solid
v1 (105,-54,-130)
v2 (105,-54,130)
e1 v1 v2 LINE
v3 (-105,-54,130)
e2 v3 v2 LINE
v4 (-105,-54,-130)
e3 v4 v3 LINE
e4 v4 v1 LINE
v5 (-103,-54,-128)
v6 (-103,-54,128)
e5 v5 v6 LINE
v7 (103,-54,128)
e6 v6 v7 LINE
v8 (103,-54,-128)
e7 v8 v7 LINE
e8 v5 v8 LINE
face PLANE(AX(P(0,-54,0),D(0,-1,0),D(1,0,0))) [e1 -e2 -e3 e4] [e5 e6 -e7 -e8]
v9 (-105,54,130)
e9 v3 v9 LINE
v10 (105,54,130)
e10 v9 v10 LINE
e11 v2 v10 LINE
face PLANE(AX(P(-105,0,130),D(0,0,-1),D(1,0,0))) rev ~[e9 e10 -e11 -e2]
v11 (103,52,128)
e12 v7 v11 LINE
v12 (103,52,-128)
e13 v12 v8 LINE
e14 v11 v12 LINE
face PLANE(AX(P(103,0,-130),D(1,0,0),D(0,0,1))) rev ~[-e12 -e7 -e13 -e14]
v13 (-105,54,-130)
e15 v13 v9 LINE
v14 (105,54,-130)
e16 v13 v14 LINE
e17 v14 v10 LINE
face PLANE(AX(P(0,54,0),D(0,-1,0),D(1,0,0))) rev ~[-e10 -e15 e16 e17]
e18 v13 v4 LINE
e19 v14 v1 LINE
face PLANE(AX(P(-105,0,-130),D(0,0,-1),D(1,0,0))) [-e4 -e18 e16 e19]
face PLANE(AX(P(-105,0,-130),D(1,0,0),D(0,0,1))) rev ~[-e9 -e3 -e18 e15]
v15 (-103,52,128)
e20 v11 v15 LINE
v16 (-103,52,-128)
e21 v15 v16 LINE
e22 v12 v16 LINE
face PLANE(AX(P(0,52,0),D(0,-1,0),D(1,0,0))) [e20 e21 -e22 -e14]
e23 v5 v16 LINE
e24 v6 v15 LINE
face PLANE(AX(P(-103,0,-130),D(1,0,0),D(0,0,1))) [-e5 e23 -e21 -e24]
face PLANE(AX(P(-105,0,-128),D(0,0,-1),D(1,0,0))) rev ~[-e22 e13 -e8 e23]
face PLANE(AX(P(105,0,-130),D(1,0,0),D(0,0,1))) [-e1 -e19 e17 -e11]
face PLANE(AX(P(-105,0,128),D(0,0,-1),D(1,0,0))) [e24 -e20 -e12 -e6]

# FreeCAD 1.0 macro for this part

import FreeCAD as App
import Part
import Sketcher
from FreeCAD import Vector


def faces_at(feature, points):
    """Names of the faces that lie closest to the given points."""
    faces = feature.Shape.Faces
    near = lambda p: min(range(len(faces)), key=lambda i: faces[i].distToShape(Part.Vertex(*p))[0])
    return sorted({f"Face{near(p) + 1}" for p in points})

doc = App.newDocument("Part")
params = doc.addObject("Spreadsheet::Sheet", "Params")
for row, (alias, value) in enumerate([
    ("sketch1_width", "210 mm"),
    ("sketch1_height", "260 mm"),
    ("pad1_length", "108 mm"),
    ("thickness_wall", "2 mm"),
], start=1):
    params.set(f"A{row}", alias)
    params.set(f"B{row}", "=" + value)
    params.setAlias(f"B{row}", alias)

body = doc.addObject("PartDesign::Body", "Body")

# Sketch on XZ plane
sketch1 = body.newObject("Sketcher::SketchObject", "Sketch")
sketch1.AttachmentSupport = (doc.getObject("XZ_Plane"), [""])
sketch1.MapMode = "FlatFace"
sketch1.addGeometry([
    Part.LineSegment(Vector(-105, 130, 0), Vector(-105, -130, 0)),
    Part.LineSegment(Vector(-105, -130, 0), Vector(105, -130, 0)),
    Part.LineSegment(Vector(105, -130, 0), Vector(105, 130, 0)),
    Part.LineSegment(Vector(105, 130, 0), Vector(-105, 130, 0)),
], False)
sketch1.addConstraint([
    Sketcher.Constraint("Coincident", 0, 2, 1, 1),
    Sketcher.Constraint("Coincident", 1, 2, 2, 1),
    Sketcher.Constraint("Coincident", 2, 2, 3, 1),
    Sketcher.Constraint("Coincident", 3, 2, 0, 1),
    Sketcher.Constraint("Vertical", 0),
    Sketcher.Constraint("Horizontal", 1),
    Sketcher.Constraint("Vertical", 2),
    Sketcher.Constraint("Horizontal", 3),
    Sketcher.Constraint("Symmetric", 0, 2, 2, 2, -1, 1),
    Sketcher.Constraint("DistanceX", 1, 1, 1, 2, 210.0),
    Sketcher.Constraint("DistanceY", 0, 2, 0, 1, 260.0),
])
sketch1.setExpression("Constraints[9]", "Params.sketch1_width")
sketch1.setExpression("Constraints[10]", "Params.sketch1_height")
pad1 = body.newObject("PartDesign::Pad", "Pad")
pad1.Profile = sketch1
pad1.setExpression("Length", "Params.pad1_length")
pad1.Midplane = True
doc.recompute()

thickness = body.newObject("PartDesign::Thickness", "Thickness")
thickness.Base = (pad1, faces_at(pad1, [(0, -54, 0)]))
thickness.setExpression("Value", "Params.thickness_wall")
thickness.Reversed = True
thickness.Join = "Arc"

doc.recompute()
